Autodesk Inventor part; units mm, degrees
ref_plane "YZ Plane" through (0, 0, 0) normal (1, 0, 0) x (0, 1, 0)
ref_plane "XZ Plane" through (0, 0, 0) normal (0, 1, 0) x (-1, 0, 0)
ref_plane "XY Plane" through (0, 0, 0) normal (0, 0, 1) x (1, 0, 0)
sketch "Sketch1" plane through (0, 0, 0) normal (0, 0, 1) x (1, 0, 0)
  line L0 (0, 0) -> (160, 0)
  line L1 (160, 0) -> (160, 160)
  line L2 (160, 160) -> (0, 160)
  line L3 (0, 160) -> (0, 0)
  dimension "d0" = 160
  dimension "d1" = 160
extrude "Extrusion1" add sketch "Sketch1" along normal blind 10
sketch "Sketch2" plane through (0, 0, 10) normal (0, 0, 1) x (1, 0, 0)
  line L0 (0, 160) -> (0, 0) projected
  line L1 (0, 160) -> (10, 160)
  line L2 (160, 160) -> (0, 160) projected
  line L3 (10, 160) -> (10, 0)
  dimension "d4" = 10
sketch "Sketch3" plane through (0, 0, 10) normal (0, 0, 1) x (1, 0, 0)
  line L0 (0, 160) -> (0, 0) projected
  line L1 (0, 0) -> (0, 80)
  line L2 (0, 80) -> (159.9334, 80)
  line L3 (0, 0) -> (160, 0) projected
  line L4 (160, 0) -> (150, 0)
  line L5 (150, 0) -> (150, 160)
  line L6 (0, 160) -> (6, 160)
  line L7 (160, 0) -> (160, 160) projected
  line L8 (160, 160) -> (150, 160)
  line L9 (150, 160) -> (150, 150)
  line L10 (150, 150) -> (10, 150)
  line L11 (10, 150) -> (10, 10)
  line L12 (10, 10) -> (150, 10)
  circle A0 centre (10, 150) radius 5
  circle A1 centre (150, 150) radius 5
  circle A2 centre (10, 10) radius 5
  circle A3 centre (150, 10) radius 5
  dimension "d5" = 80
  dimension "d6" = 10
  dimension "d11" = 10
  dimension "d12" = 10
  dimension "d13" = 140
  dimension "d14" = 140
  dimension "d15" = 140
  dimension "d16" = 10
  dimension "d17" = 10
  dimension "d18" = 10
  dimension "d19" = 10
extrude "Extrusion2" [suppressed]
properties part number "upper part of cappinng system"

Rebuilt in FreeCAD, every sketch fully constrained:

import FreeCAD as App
import Part
import Sketcher
Q = App.Units.Quantity

doc = App.newDocument("Part")
params = doc.addObject("Spreadsheet::Sheet", "Params")
for row, (alias, value) in enumerate([
    ("sketch1_width", "160 mm"),
    ("pad1_length", "10 mm"),
], start=1):
    params.set(f"A{row}", alias)
    params.set(f"B{row}", "=" + value)
    params.setAlias(f"B{row}", alias)

body = doc.addObject("PartDesign::Body", "Body")

sketch1 = body.newObject("Sketcher::SketchObject", "Sketch")
sketch1.AttachmentSupport = (doc.getObject("XY_Plane"), [""])
sketch1.MapMode = "FlatFace"
sketch1.addGeometry([
    Part.LineSegment(App.Vector(0, 160, 0), App.Vector(0, 0, 0)),
    Part.LineSegment(App.Vector(0, 0, 0), App.Vector(160, 0, 0)),
    Part.LineSegment(App.Vector(160, 0, 0), App.Vector(160, 160, 0)),
    Part.LineSegment(App.Vector(160, 160, 0), App.Vector(0, 160, 0)),
], False)
sketch1.addConstraint([
    Sketcher.Constraint("Coincident", 0, 2, 1, 1),
    Sketcher.Constraint("Coincident", 1, 2, 2, 1),
    Sketcher.Constraint("Coincident", 2, 2, 3, 1),
    Sketcher.Constraint("Coincident", 3, 2, 0, 1),
    Sketcher.Constraint("Vertical", 0),
    Sketcher.Constraint("Horizontal", 1),
    Sketcher.Constraint("Vertical", 2),
    Sketcher.Constraint("Horizontal", 3),
    Sketcher.Constraint("Coincident", 0, 2, -1, 1),
    Sketcher.Constraint("Equal", 3, 0),
    Sketcher.Constraint("DistanceX", 1, 1, 1, 2, Q("160 mm")),
])
sketch1.setExpression("Constraints[10]", "Params.sketch1_width")
pad1 = body.newObject("PartDesign::Pad", "Pad")
pad1.Profile = sketch1
pad1.setExpression("Length", "Params.pad1_length")

doc.recompute()
